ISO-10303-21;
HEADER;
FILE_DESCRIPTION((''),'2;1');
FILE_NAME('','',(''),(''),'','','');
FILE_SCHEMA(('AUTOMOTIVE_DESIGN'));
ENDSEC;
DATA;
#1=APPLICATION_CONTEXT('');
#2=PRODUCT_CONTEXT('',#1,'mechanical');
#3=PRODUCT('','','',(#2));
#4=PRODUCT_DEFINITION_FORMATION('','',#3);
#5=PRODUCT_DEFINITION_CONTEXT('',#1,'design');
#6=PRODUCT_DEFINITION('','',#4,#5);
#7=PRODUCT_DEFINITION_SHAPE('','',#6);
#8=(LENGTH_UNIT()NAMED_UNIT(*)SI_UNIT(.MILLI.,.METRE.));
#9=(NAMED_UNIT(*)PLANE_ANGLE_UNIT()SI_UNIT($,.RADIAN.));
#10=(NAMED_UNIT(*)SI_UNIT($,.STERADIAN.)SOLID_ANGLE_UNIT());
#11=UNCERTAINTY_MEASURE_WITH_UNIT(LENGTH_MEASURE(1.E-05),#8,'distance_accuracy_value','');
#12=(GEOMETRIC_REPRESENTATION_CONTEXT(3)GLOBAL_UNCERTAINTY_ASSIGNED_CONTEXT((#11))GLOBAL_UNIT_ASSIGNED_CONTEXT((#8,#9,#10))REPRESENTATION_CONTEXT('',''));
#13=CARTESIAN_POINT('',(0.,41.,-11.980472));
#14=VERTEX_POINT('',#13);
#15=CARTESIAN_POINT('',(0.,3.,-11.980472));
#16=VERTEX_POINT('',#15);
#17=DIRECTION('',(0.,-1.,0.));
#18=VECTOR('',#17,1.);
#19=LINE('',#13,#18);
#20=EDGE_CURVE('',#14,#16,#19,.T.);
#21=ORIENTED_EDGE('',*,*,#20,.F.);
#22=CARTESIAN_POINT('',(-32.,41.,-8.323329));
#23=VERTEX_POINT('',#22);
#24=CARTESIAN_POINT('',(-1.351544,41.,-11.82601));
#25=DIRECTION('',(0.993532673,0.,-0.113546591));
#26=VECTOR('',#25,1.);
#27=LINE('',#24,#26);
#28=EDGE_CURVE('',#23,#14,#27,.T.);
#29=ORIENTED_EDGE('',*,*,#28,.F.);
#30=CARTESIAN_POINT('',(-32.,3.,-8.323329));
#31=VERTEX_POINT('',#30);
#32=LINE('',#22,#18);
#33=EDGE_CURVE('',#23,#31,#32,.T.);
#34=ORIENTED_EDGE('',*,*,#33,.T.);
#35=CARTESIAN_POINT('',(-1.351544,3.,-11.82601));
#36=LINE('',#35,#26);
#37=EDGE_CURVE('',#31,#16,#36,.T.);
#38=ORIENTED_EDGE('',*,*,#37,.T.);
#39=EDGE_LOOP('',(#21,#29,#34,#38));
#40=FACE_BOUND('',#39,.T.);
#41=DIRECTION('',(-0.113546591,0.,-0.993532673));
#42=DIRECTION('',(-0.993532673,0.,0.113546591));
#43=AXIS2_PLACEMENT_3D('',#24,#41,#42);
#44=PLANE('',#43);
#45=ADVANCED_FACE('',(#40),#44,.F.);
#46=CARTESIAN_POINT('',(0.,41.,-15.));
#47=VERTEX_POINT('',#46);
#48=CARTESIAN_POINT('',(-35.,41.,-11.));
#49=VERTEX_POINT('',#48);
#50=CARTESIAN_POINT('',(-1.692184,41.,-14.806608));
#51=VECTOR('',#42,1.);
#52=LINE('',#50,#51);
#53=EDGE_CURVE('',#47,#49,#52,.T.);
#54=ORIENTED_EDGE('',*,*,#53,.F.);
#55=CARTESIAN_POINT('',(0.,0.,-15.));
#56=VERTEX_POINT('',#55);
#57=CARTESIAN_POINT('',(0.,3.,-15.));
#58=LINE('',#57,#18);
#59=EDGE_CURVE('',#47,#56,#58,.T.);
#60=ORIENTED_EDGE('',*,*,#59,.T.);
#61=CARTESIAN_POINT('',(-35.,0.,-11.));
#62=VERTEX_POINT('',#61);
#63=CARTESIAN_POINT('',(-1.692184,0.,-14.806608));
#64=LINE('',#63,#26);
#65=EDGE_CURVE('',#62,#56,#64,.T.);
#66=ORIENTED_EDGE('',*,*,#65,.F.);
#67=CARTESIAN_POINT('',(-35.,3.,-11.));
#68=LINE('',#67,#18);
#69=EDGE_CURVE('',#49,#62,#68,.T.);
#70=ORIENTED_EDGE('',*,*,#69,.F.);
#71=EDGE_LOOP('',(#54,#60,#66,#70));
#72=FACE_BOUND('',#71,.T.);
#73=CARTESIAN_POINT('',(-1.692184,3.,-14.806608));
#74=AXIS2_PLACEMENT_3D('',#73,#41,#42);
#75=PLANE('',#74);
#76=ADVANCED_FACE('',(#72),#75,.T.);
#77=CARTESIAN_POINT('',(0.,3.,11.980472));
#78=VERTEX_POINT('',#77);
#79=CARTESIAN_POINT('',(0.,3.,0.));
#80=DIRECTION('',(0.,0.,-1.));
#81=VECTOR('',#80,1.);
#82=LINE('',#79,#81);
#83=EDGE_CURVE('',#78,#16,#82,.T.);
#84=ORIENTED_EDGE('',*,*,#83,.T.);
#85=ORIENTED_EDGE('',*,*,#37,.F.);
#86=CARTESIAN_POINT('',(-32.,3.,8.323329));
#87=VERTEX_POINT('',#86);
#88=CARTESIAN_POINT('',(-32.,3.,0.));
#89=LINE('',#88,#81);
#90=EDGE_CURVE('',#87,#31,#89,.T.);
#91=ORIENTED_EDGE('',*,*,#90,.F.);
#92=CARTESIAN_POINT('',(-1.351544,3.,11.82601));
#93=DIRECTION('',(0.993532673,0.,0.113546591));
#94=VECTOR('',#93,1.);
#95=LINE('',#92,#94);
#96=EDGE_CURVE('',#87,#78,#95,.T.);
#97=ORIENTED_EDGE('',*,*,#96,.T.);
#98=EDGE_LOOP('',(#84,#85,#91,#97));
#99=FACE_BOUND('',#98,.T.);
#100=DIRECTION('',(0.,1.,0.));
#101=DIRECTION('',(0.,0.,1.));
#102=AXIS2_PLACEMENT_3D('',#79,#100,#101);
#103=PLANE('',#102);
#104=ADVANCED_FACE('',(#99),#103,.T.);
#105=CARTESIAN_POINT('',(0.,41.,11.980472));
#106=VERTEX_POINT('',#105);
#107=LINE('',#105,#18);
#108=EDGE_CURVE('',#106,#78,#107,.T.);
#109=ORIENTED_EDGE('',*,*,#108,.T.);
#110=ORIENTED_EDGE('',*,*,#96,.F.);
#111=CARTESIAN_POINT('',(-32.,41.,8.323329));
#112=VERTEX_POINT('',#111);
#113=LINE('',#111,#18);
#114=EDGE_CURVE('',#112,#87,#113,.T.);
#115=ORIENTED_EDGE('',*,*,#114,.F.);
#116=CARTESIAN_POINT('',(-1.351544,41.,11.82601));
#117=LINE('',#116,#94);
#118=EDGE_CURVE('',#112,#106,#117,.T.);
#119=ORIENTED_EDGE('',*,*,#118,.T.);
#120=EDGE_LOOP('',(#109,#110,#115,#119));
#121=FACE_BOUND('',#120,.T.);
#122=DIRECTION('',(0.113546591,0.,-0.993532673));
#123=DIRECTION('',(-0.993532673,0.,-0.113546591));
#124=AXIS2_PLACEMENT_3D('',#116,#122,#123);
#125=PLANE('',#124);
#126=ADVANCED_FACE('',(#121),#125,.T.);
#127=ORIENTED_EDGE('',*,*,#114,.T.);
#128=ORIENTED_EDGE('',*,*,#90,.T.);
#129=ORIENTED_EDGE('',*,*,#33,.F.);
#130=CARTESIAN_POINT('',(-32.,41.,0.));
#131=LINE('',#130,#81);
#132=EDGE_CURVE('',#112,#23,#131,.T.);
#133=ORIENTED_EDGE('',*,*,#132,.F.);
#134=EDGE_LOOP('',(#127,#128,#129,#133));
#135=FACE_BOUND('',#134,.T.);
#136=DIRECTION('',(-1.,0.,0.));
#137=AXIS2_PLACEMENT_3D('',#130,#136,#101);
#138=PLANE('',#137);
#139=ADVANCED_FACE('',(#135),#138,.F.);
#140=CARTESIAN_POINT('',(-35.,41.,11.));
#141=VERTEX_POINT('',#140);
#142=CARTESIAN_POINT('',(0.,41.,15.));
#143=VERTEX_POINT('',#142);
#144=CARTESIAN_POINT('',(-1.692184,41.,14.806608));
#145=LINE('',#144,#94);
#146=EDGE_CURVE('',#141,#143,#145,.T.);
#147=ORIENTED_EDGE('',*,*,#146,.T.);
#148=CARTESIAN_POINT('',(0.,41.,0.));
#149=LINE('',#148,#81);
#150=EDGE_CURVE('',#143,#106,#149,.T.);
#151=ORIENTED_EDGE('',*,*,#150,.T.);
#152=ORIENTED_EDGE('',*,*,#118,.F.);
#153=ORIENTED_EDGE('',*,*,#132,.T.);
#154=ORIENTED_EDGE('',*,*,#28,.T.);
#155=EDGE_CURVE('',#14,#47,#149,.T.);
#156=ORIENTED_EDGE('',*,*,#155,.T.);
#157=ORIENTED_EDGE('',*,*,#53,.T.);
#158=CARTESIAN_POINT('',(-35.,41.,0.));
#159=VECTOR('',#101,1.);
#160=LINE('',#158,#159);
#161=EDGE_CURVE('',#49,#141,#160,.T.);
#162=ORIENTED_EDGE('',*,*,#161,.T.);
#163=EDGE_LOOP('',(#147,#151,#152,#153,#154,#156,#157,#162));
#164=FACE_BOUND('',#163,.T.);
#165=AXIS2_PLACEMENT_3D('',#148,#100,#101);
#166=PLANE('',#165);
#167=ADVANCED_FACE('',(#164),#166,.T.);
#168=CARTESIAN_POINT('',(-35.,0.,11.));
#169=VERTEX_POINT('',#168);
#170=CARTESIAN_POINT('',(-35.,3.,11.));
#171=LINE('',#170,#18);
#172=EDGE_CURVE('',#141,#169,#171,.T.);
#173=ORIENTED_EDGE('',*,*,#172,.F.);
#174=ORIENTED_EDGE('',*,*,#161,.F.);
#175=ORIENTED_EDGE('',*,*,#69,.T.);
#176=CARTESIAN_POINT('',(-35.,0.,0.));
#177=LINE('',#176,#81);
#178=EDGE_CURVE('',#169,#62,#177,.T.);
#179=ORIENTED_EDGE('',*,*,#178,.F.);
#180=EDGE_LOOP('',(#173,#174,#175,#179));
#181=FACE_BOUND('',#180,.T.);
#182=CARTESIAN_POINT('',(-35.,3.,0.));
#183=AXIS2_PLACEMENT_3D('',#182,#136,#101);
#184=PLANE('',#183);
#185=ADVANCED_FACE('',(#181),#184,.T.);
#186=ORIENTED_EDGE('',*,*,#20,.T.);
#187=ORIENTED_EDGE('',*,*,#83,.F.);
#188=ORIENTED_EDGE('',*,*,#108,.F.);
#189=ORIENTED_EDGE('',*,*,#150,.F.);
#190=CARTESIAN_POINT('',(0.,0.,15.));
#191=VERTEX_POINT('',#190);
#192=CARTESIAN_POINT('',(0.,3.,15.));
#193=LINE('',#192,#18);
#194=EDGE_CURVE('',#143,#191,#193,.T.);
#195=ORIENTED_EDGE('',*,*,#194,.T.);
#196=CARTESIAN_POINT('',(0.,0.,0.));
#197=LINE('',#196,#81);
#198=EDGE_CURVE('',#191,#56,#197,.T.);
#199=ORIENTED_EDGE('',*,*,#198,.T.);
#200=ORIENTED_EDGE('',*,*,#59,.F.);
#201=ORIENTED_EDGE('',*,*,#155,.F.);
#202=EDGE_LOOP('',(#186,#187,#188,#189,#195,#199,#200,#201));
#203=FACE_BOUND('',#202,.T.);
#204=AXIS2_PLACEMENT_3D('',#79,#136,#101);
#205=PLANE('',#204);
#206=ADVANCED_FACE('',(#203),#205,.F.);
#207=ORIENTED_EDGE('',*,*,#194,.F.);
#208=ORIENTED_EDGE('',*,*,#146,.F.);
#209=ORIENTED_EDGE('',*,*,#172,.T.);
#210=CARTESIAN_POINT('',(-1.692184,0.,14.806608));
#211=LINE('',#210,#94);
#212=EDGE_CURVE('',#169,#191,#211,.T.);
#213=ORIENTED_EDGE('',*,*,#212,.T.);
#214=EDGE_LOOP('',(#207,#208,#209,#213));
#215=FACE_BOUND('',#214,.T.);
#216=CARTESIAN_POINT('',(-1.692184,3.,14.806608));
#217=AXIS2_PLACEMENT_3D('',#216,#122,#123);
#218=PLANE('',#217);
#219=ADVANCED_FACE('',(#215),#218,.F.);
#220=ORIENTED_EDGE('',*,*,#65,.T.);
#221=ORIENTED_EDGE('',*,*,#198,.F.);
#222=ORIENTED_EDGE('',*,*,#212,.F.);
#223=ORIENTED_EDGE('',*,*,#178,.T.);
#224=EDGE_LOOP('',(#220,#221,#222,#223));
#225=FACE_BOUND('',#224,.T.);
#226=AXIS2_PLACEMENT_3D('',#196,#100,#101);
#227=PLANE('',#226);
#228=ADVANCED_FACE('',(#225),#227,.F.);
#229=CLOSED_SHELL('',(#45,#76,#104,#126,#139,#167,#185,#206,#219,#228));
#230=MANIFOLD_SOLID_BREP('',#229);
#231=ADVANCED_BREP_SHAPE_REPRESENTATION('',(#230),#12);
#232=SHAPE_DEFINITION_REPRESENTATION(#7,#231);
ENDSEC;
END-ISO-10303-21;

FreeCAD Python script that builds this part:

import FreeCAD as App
import Part
import Sketcher
from FreeCAD import Vector


def add_polygon(sketch, points):
    """Adds a closed chain of lines whose ends are joined by coincident constraints."""
    first, n = sketch.GeometryCount, len(points)
    for a, b in zip(points, points[1:] + points[:1]):
        sketch.addGeometry(Part.LineSegment(App.Vector(*a, 0), App.Vector(*b, 0)), False)
    for i in range(n):
        sketch.addConstraint(Sketcher.Constraint("Coincident", first + i, 2, first + (i + 1) % n, 1))

doc = App.newDocument("Part")
body = doc.addObject("PartDesign::Body", "Body")

sketch1 = body.newObject("Sketcher::SketchObject", "Sketch")
sketch1.AttachmentSupport = (doc.getObject("XZ_Plane"), [""])
sketch1.MapMode = "FlatFace"
add_polygon(sketch1, [(0, -15), (-35, -11), (-35, 11), (0, 15)])
sketch1.addConstraint(Sketcher.Constraint("Vertical", 1))
sketch1.addConstraint(Sketcher.Constraint("Vertical", 3))
sketch1.addConstraint(Sketcher.Constraint("Symmetric", 2, 2, 3, 2, -1, 1))
sketch1.addConstraint(Sketcher.Constraint("Equal", 0, 2))
sketch1.addConstraint(Sketcher.Constraint("DistanceY", 1, 1, 1, 2, 22.0))
sketch1.addConstraint(Sketcher.Constraint("DistanceY", 3, 2, 3, 1, 30.0))
sketch1.addConstraint(Sketcher.Constraint("DistanceX", 0, 2, -1, 1, 35.0))
pad1 = body.newObject("PartDesign::Pad", "Pad")
pad1.Profile = sketch1
pad1.Length = 3
pad1.Reversed = True

sketch2 = body.newObject("Sketcher::SketchObject", "Sketch001")
sketch2.AttachmentSupport = (doc.getObject("XZ_Plane"), [""])
sketch2.MapMode = "FlatFace"
sketch2.AttachmentOffset = App.Placement(Vector(0, 0, -3), App.Rotation())
add_polygon(sketch2, [(-35, -11), (-35, 11), (0, 15), (0, 12), (-32, 8.3), (-32, -8.3), (0, -12), (0, -15)])
sketch2.addConstraint(Sketcher.Constraint("Vertical", 0))
sketch2.addConstraint(Sketcher.Constraint("Vertical", 2))
sketch2.addConstraint(Sketcher.Constraint("Vertical", 4))
sketch2.addConstraint(Sketcher.Constraint("Vertical", 6))
sketch2.addConstraint(Sketcher.Constraint("Symmetric", 2, 2, 5, 2, -1, 1))
sketch2.addConstraint(Sketcher.Constraint("Symmetric", 1, 2, 6, 2, -1))
sketch2.addConstraint(Sketcher.Constraint("Parallel", 1, 3))
sketch2.addConstraint(Sketcher.Constraint("Parallel", 5, 7))
sketch2.addConstraint(Sketcher.Constraint("Equal", 3, 5))
sketch2.addConstraint(Sketcher.Constraint("DistanceY", 0, 1, 0, 2, 22.0))
sketch2.addConstraint(Sketcher.Constraint("DistanceX", 0, 2, -1, 1, 35.0))
sketch2.addConstraint(Sketcher.Constraint("DistanceY", -1, 1, 1, 2, 15.0))
sketch2.addConstraint(Sketcher.Constraint("DistanceX", 3, 2, -1, 1, 32.0))
sketch2.addConstraint(Sketcher.Constraint("DistanceY", 2, 2, 2, 1, 3.019528))
pad2 = body.newObject("PartDesign::Pad", "Pad001")
pad2.Profile = sketch2
pad2.Length = 38
pad2.Reversed = True

doc.recompute()
